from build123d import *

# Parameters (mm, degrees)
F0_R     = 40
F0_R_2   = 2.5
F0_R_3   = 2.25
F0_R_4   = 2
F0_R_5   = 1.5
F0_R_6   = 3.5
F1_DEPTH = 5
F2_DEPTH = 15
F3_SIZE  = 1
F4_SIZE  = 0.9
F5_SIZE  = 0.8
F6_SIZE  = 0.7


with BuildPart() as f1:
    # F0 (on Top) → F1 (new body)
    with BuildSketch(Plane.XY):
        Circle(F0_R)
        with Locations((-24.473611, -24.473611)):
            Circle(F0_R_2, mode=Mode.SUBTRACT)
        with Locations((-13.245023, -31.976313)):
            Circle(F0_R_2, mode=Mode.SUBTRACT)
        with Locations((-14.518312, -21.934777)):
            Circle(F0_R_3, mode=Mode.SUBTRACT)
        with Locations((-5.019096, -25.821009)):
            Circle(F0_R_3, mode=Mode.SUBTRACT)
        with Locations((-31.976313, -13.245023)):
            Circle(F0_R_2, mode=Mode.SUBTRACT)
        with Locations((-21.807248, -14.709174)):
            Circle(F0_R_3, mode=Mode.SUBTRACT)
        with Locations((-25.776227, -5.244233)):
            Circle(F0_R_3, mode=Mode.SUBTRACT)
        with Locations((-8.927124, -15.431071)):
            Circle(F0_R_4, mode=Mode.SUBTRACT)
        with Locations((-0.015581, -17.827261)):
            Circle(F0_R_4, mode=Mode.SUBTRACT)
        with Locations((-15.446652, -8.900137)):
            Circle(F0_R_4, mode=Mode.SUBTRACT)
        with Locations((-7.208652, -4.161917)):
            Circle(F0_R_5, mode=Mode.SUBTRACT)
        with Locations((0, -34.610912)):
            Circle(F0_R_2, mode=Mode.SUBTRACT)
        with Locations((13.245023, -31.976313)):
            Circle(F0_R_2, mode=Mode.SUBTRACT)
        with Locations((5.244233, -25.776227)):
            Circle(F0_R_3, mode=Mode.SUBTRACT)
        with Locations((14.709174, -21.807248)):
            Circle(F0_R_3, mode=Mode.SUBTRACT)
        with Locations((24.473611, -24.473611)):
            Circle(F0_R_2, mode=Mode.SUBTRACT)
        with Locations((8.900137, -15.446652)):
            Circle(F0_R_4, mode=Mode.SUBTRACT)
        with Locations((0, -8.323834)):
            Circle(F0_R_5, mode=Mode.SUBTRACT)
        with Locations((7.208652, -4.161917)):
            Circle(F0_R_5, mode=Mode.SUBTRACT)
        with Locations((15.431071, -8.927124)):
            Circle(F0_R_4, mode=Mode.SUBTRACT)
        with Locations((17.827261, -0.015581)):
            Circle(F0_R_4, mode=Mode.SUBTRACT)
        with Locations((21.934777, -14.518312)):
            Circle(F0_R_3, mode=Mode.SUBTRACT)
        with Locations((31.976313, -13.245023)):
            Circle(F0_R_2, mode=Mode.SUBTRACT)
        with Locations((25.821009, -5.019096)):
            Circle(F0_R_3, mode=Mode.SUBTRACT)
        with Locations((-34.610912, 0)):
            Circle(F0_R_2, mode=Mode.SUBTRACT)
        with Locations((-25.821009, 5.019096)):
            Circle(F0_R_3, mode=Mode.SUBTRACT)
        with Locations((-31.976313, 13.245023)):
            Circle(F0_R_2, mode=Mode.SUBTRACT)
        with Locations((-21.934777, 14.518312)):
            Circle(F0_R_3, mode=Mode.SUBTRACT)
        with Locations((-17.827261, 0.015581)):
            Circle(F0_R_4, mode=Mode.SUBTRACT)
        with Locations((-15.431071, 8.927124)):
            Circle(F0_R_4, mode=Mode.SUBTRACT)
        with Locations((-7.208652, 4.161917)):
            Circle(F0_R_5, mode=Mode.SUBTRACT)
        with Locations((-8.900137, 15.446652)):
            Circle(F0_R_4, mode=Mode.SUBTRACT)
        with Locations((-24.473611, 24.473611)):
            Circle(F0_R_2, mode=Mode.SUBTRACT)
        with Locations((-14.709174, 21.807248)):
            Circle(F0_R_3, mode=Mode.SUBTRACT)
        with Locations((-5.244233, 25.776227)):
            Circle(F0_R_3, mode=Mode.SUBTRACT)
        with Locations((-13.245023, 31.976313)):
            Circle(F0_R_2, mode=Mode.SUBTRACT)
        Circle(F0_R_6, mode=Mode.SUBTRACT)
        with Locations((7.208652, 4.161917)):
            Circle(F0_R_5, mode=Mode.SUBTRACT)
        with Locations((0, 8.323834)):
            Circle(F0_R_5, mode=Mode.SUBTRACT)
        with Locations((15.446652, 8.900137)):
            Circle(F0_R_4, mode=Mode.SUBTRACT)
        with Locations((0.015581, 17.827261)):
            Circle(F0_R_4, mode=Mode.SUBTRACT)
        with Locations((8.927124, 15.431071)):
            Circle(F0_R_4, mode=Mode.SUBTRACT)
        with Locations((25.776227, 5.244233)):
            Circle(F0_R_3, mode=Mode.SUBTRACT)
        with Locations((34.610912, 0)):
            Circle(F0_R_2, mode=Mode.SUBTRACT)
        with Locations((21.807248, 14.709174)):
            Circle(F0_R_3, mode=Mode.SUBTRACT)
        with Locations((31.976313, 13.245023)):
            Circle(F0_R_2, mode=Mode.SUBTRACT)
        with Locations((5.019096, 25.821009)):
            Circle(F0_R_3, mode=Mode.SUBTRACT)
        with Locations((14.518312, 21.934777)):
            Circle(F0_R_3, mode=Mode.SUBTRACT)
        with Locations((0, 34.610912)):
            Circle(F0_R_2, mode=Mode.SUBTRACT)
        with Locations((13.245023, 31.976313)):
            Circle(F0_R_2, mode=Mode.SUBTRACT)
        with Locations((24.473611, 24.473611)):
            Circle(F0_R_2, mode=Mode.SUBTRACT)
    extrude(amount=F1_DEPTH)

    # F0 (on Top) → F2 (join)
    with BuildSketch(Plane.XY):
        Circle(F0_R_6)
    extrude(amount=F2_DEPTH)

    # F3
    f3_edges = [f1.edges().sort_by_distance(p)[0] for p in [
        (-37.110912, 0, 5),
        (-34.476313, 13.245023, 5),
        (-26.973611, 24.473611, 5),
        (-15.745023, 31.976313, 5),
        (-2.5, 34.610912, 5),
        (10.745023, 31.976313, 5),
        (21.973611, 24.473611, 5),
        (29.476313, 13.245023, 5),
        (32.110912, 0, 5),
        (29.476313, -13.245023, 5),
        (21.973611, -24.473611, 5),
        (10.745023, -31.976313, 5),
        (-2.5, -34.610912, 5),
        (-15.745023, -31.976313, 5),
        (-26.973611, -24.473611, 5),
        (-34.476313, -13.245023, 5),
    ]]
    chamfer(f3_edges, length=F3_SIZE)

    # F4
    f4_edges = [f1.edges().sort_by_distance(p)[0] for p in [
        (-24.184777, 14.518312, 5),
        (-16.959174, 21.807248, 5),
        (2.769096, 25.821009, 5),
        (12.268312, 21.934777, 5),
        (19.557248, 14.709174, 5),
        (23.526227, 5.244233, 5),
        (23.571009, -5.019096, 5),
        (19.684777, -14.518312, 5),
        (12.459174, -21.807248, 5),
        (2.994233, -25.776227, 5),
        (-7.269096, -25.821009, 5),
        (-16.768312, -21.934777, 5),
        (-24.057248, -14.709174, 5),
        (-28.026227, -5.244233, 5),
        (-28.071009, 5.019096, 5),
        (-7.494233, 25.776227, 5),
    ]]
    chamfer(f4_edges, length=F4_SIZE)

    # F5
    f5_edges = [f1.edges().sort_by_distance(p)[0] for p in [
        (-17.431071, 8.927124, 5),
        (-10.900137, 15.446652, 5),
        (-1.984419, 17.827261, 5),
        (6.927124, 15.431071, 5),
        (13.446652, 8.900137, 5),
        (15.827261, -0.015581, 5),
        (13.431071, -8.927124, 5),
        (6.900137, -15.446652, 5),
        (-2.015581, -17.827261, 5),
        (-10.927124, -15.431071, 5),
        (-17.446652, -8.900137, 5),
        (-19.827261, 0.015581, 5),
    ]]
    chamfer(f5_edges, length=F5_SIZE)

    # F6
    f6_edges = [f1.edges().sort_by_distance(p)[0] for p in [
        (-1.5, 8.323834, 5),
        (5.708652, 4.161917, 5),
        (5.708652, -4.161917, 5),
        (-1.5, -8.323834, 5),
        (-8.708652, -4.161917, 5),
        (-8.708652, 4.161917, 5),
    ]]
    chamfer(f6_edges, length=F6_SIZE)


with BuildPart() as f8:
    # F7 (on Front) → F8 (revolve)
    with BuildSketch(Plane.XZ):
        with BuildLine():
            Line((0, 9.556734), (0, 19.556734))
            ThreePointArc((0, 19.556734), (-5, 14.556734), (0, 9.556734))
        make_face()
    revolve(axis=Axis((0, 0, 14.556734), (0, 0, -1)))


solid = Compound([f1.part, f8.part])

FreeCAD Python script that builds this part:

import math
import FreeCAD as App
import Part
import Sketcher
Q = App.Units.Quantity


def edges_at(feature, points):
    """Names of the edges that pass closest to the given points."""
    edges = feature.Shape.Edges
    near = lambda p: min(range(len(edges)), key=lambda i: edges[i].distToShape(Part.Vertex(*p))[0])
    return sorted({f"Edge{near(p) + 1}" for p in points})

doc = App.newDocument("Part")
params = doc.addObject("Spreadsheet::Sheet", "Params")
for row, (alias, value) in enumerate([
    ("sketch1_diameter", "80 mm"),
    ("sketch1_diameter2", "5 mm"),
    ("sketch1_diameter3", "4 mm"),
    ("sketch1_diameter4", "3 mm"),
    ("sketch1_diameter5", "7 mm"),
    ("pad1_length", "5 mm"),
    ("sketch2_diameter", "7 mm"),
    ("pad2_length", "15 mm"),
    ("chamfer_size", "1 mm"),
    ("chamfer2_size", "0.9 mm"),
    ("chamfer3_size", "0.8 mm"),
    ("chamfer4_size", "0.7 mm"),
    ("sketch3_radius", "5 mm"),
    ("revolution_angle", "360 deg"),
], start=1):
    params.set(f"A{row}", alias)
    params.set(f"B{row}", "=" + value)
    params.setAlias(f"B{row}", alias)

body = doc.addObject("PartDesign::Body", "Body")

# Sketch on XY plane
sketch1 = body.newObject("Sketcher::SketchObject", "Sketch")
sketch1.AttachmentSupport = (doc.getObject("XY_Plane"), [""])
sketch1.MapMode = "FlatFace"
sketch1.addGeometry([
    Part.Circle(App.Vector(0, 0, 0), App.Vector(0, 0, 1), 40),  # 0
    Part.Circle(App.Vector(-24.5, -24.5, 0), App.Vector(0, 0, 1), 2.5),  # 1
    Part.Circle(App.Vector(-13.2, -32, 0), App.Vector(0, 0, 1), 2.5),  # 2
    Part.Circle(App.Vector(-14.5, -21.9, 0), App.Vector(0, 0, 1), 2.2),  # 3
    Part.Circle(App.Vector(-5, -25.8, 0), App.Vector(0, 0, 1), 2.2),  # 4
    Part.Circle(App.Vector(-32, -13.2, 0), App.Vector(0, 0, 1), 2.5),  # 5
    Part.Circle(App.Vector(-21.8, -14.7, 0), App.Vector(0, 0, 1), 2.2),  # 6
    Part.Circle(App.Vector(-25.8, -5.2, 0), App.Vector(0, 0, 1), 2.2),  # 7
    Part.Circle(App.Vector(-8.9, -15.4, 0), App.Vector(0, 0, 1), 2),  # 8
    Part.Circle(App.Vector(0, -17.8, 0), App.Vector(0, 0, 1), 2),  # 9
    Part.Circle(App.Vector(-15.4, -8.9, 0), App.Vector(0, 0, 1), 2),  # 10
    Part.Circle(App.Vector(-7.2, -4.2, 0), App.Vector(0, 0, 1), 1.5),  # 11
    Part.Circle(App.Vector(0, -34.6, 0), App.Vector(0, 0, 1), 2.5),  # 12
    Part.Circle(App.Vector(13.2, -32, 0), App.Vector(0, 0, 1), 2.5),  # 13
    Part.Circle(App.Vector(5.2, -25.8, 0), App.Vector(0, 0, 1), 2.2),  # 14
    Part.Circle(App.Vector(14.7, -21.8, 0), App.Vector(0, 0, 1), 2.2),  # 15
    Part.Circle(App.Vector(24.5, -24.5, 0), App.Vector(0, 0, 1), 2.5),  # 16
    Part.Circle(App.Vector(8.9, -15.4, 0), App.Vector(0, 0, 1), 2),  # 17
    Part.Circle(App.Vector(0, -8.3, 0), App.Vector(0, 0, 1), 1.5),  # 18
    Part.Circle(App.Vector(7.2, -4.2, 0), App.Vector(0, 0, 1), 1.5),  # 19
    Part.Circle(App.Vector(15.4, -8.9, 0), App.Vector(0, 0, 1), 2),  # 20
    Part.Circle(App.Vector(17.8, 0, 0), App.Vector(0, 0, 1), 2),  # 21
    Part.Circle(App.Vector(21.9, -14.5, 0), App.Vector(0, 0, 1), 2.2),  # 22
    Part.Circle(App.Vector(32, -13.2, 0), App.Vector(0, 0, 1), 2.5),  # 23
    Part.Circle(App.Vector(25.8, -5, 0), App.Vector(0, 0, 1), 2.2),  # 24
    Part.Circle(App.Vector(-34.6, 0, 0), App.Vector(0, 0, 1), 2.5),  # 25
    Part.Circle(App.Vector(-25.8, 5, 0), App.Vector(0, 0, 1), 2.2),  # 26
    Part.Circle(App.Vector(-32, 13.2, 0), App.Vector(0, 0, 1), 2.5),  # 27
    Part.Circle(App.Vector(-21.9, 14.5, 0), App.Vector(0, 0, 1), 2.2),  # 28
    Part.Circle(App.Vector(-17.8, 0, 0), App.Vector(0, 0, 1), 2),  # 29
    Part.Circle(App.Vector(-15.4, 8.9, 0), App.Vector(0, 0, 1), 2),  # 30
    Part.Circle(App.Vector(-7.2, 4.2, 0), App.Vector(0, 0, 1), 1.5),  # 31
    Part.Circle(App.Vector(-8.9, 15.4, 0), App.Vector(0, 0, 1), 2),  # 32
    Part.Circle(App.Vector(-24.5, 24.5, 0), App.Vector(0, 0, 1), 2.5),  # 33
    Part.Circle(App.Vector(-14.7, 21.8, 0), App.Vector(0, 0, 1), 2.2),  # 34
    Part.Circle(App.Vector(-5.2, 25.8, 0), App.Vector(0, 0, 1), 2.2),  # 35
    Part.Circle(App.Vector(-13.2, 32, 0), App.Vector(0, 0, 1), 2.5),  # 36
    Part.Circle(App.Vector(0, 0, 0), App.Vector(0, 0, 1), 3.5),  # 37
    Part.Circle(App.Vector(7.2, 4.2, 0), App.Vector(0, 0, 1), 1.5),  # 38
    Part.Circle(App.Vector(0, 8.3, 0), App.Vector(0, 0, 1), 1.5),  # 39
    Part.Circle(App.Vector(15.4, 8.9, 0), App.Vector(0, 0, 1), 2),  # 40
    Part.Circle(App.Vector(0, 17.8, 0), App.Vector(0, 0, 1), 2),  # 41
    Part.Circle(App.Vector(8.9, 15.4, 0), App.Vector(0, 0, 1), 2),  # 42
    Part.Circle(App.Vector(25.8, 5.2, 0), App.Vector(0, 0, 1), 2.2),  # 43
    Part.Circle(App.Vector(34.6, 0, 0), App.Vector(0, 0, 1), 2.5),  # 44
    Part.Circle(App.Vector(21.8, 14.7, 0), App.Vector(0, 0, 1), 2.2),  # 45
    Part.Circle(App.Vector(32, 13.2, 0), App.Vector(0, 0, 1), 2.5),  # 46
    Part.Circle(App.Vector(5, 25.8, 0), App.Vector(0, 0, 1), 2.2),  # 47
    Part.Circle(App.Vector(14.5, 21.9, 0), App.Vector(0, 0, 1), 2.2),  # 48
    Part.Circle(App.Vector(0, 34.6, 0), App.Vector(0, 0, 1), 2.5),  # 49
    Part.Circle(App.Vector(13.2, 32, 0), App.Vector(0, 0, 1), 2.5),  # 50
    Part.Circle(App.Vector(24.5, 24.5, 0), App.Vector(0, 0, 1), 2.5),  # 51
], False)
sketch1.addConstraint([
    Sketcher.Constraint("Coincident", 0, 3, -1, 1),
    Sketcher.Constraint("Coincident", 37, 3, -1, 1),
    Sketcher.Constraint("Equal", 1, 2),
    Sketcher.Constraint("Equal", 3, 4),
    Sketcher.Constraint("Equal", 2, 5),
    Sketcher.Constraint("Equal", 4, 6),
    Sketcher.Constraint("Equal", 6, 7),
    Sketcher.Constraint("Equal", 8, 9),
    Sketcher.Constraint("Equal", 9, 10),
    Sketcher.Constraint("Equal", 5, 12),
    Sketcher.Constraint("Equal", 12, 13),
    Sketcher.Constraint("Equal", 7, 14),
    Sketcher.Constraint("Equal", 14, 15),
    Sketcher.Constraint("Equal", 13, 16),
    Sketcher.Constraint("Equal", 10, 17),
    Sketcher.Constraint("Equal", 11, 18),
    Sketcher.Constraint("Equal", 18, 19),
    Sketcher.Constraint("Equal", 17, 20),
    Sketcher.Constraint("Equal", 20, 21),
    Sketcher.Constraint("Equal", 15, 22),
    Sketcher.Constraint("Equal", 16, 23),
    Sketcher.Constraint("Equal", 22, 24),
    Sketcher.Constraint("Equal", 23, 25),
    Sketcher.Constraint("Equal", 24, 26),
    Sketcher.Constraint("Equal", 25, 27),
    Sketcher.Constraint("Equal", 26, 28),
    Sketcher.Constraint("Equal", 21, 29),
    Sketcher.Constraint("Equal", 29, 30),
    Sketcher.Constraint("Equal", 19, 31),
    Sketcher.Constraint("Equal", 30, 32),
    Sketcher.Constraint("Equal", 27, 33),
    Sketcher.Constraint("Equal", 28, 34),
    Sketcher.Constraint("Equal", 34, 35),
    Sketcher.Constraint("Equal", 33, 36),
    Sketcher.Constraint("Equal", 31, 38),
    Sketcher.Constraint("Equal", 38, 39),
    Sketcher.Constraint("Equal", 32, 40),
    Sketcher.Constraint("Equal", 40, 41),
    Sketcher.Constraint("Equal", 41, 42),
    Sketcher.Constraint("Equal", 35, 43),
    Sketcher.Constraint("Equal", 36, 44),
    Sketcher.Constraint("Equal", 43, 45),
    Sketcher.Constraint("Equal", 44, 46),
    Sketcher.Constraint("Equal", 45, 47),
    Sketcher.Constraint("Equal", 47, 48),
    Sketcher.Constraint("Equal", 46, 49),
    Sketcher.Constraint("Equal", 49, 50),
    Sketcher.Constraint("Equal", 50, 51),
    Sketcher.Constraint("Symmetric", 24, 3, 26, 3, -1, 1),
    Sketcher.Constraint("Symmetric", 23, 3, 27, 3, -1, 1),
    Sketcher.Constraint("Symmetric", 22, 3, 28, 3, -1, 1),
    Sketcher.Constraint("Symmetric", 21, 3, 29, 3, -1, 1),
    Sketcher.Constraint("Symmetric", 20, 3, 30, 3, -1, 1),
    Sketcher.Constraint("Symmetric", 19, 3, 31, 3, -1, 1),
    Sketcher.Constraint("Symmetric", 17, 3, 32, 3, -1, 1),
    Sketcher.Constraint("Symmetric", 16, 3, 33, 3, -1, 1),
    Sketcher.Constraint("Symmetric", 15, 3, 34, 3, -1, 1),
    Sketcher.Constraint("Symmetric", 14, 3, 35, 3, -1, 1),
    Sketcher.Constraint("Symmetric", 13, 3, 36, 3, -1, 1),
    Sketcher.Constraint("Symmetric", 11, 3, 38, 3, -1, 1),
    Sketcher.Constraint("Symmetric", 18, 3, 39, 3, -1, 1),
    Sketcher.Constraint("Symmetric", 10, 3, 40, 3, -1, 1),
    Sketcher.Constraint("Symmetric", 9, 3, 41, 3, -1, 1),
    Sketcher.Constraint("Symmetric", 8, 3, 42, 3, -1, 1),
    Sketcher.Constraint("Symmetric", 7, 3, 43, 3, -1, 1),
    Sketcher.Constraint("Symmetric", 25, 3, 44, 3, -1, 1),
    Sketcher.Constraint("Symmetric", 6, 3, 45, 3, -1, 1),
    Sketcher.Constraint("Symmetric", 5, 3, 46, 3, -1, 1),
    Sketcher.Constraint("Symmetric", 4, 3, 47, 3, -1, 1),
    Sketcher.Constraint("Symmetric", 3, 3, 48, 3, -1, 1),
    Sketcher.Constraint("Symmetric", 12, 3, 49, 3, -1, 1),
    Sketcher.Constraint("Symmetric", 2, 3, 50, 3, -1, 1),
    Sketcher.Constraint("Symmetric", 1, 3, 51, 3, -1, 1),
    Sketcher.Constraint("Symmetric", 2, 3, 13, 3, -2),
    Sketcher.Constraint("Symmetric", 1, 3, 16, 3, -2),
    Sketcher.Constraint("Symmetric", 11, 3, 19, 3, -2),
    Sketcher.Constraint("Symmetric", 5, 3, 23, 3, -2),
    Sketcher.Constraint("PointOnObject", 12, 3, -2),
    Sketcher.Constraint("PointOnObject", 18, 3, -2),
    Sketcher.Constraint("PointOnObject", 25, 3, -1),
    Sketcher.Constraint("Diameter", 0, Q("80 mm")),
    Sketcher.Constraint("Diameter", 1, Q("5 mm")),
    Sketcher.Constraint("Diameter", 8, Q("4 mm")),
    Sketcher.Constraint("Diameter", 11, Q("3 mm")),
    Sketcher.Constraint("Diameter", 37, Q("7 mm")),
    Sketcher.Constraint("Diameter", 3, Q("4.5 mm")),
    Sketcher.Constraint("DistanceX", 5, 3, 3, 3, Q("17.458001 mm")),
    Sketcher.Constraint("DistanceX", 10, 3, 11, 3, Q("8.238 mm")),
    Sketcher.Constraint("DistanceY", 28, 3, 36, 3, Q("17.458001 mm")),
    Sketcher.Constraint("DistanceX", 1, 3, 3, 3, Q("9.955299 mm")),
    Sketcher.Constraint("DistanceY", 4, 3, 1, 3, Q("1.347398 mm")),
    Sketcher.Constraint("DistanceX", 2, 3, 8, 3, Q("4.317899 mm")),
    Sketcher.Constraint("DistanceY", 12, 3, 2, 3, Q("2.634599 mm")),
    Sketcher.Constraint("DistanceY", 12, 3, 16, 3, Q("10.137301 mm")),
    Sketcher.Constraint("DistanceY", 23, 3, 20, 3, Q("4.317899 mm")),
    Sketcher.Constraint("DistanceX", 25, 3, 5, 3, Q("2.634599 mm")),
    Sketcher.Constraint("DistanceX", 26, 3, 33, 3, Q("1.347398 mm")),
    Sketcher.Constraint("DistanceX", 1, 3, -1, 1, Q("24.473611 mm")),
    Sketcher.Constraint("DistanceY", 1, 3, -1, 1, Q("24.473611 mm")),
    Sketcher.Constraint("DistanceX", 6, 3, -1, 1, Q("21.807248 mm")),
    Sketcher.Constraint("DistanceY", 8, 3, -1, 1, Q("15.431071 mm")),
    Sketcher.Constraint("DistanceX", 9, 3, -1, 1, Q("0.015581 mm")),
    Sketcher.Constraint("DistanceY", 9, 3, -1, 1, Q("17.827261 mm")),
    Sketcher.Constraint("DistanceY", 15, 3, -1, 1, Q("21.807248 mm")),
    Sketcher.Constraint("DistanceX", -1, 1, 20, 3, Q("15.431071 mm")),
    Sketcher.Constraint("DistanceX", -1, 1, 21, 3, Q("17.827261 mm")),
    Sketcher.Constraint("DistanceY", 21, 3, -1, 1, Q("0.015581 mm")),
    Sketcher.Constraint("DistanceX", 3, 3, 2, 3, Q("1.273289 mm")),
    Sketcher.Constraint("DistanceY", 4, 3, 3, 3, Q("3.886232 mm")),
    Sketcher.Constraint("DistanceY", 2, 3, 5, 3, Q("18.73129 mm")),
    Sketcher.Constraint("DistanceY", 6, 3, 5, 3, Q("1.464151 mm")),
    Sketcher.Constraint("DistanceX", 6, 3, 4, 3, Q("16.788152 mm")),
    Sketcher.Constraint("DistanceY", 5, 3, 7, 3, Q("8.00079 mm")),
    Sketcher.Constraint("DistanceX", 7, 3, 6, 3, Q("3.968979 mm")),
    Sketcher.Constraint("DistanceX", 10, 3, 8, 3, Q("6.519528 mm")),
    Sketcher.Constraint("DistanceY", 3, 3, 10, 3, Q("13.03464 mm")),
    Sketcher.Constraint("DistanceY", 10, 3, 11, 3, Q("4.73822 mm")),
    Sketcher.Constraint("DistanceX", 14, 3, 13, 3, Q("8.00079 mm")),
    Sketcher.Constraint("DistanceX", 14, 3, 15, 3, Q("9.464941 mm")),
    Sketcher.Constraint("DistanceY", 14, 3, 15, 3, Q("3.968979 mm")),
    Sketcher.Constraint("DistanceY", 9, 3, 17, 3, Q("2.380609 mm")),
    Sketcher.Constraint("DistanceY", 17, 3, 18, 3, Q("7.122818 mm")),
    Sketcher.Constraint("DistanceX", 17, 3, 22, 3, Q("13.03464 mm")),
    Sketcher.Constraint("DistanceX", 22, 3, 24, 3, Q("3.886232 mm")),
    Sketcher.Constraint("DistanceY", 24, 3, 19, 3, Q("0.857179 mm")),
])
sketch1.setExpression("Constraints[80]", "Params.sketch1_diameter")
sketch1.setExpression("Constraints[81]", "Params.sketch1_diameter2")
sketch1.setExpression("Constraints[82]", "Params.sketch1_diameter3")
sketch1.setExpression("Constraints[83]", "Params.sketch1_diameter4")
sketch1.setExpression("Constraints[84]", "Params.sketch1_diameter5")
pad1 = body.newObject("PartDesign::Pad", "Pad")
pad1.Profile = sketch1
pad1.setExpression("Length", "Params.pad1_length")

# Sketch on XY plane
sketch2 = body.newObject("Sketcher::SketchObject", "Sketch001")
sketch2.AttachmentSupport = (doc.getObject("XY_Plane"), [""])
sketch2.MapMode = "FlatFace"
sketch2.addGeometry(Part.Circle(App.Vector(0, 0, 0), App.Vector(0, 0, 1), 3.5), False)
sketch2.addConstraint([
    Sketcher.Constraint("Coincident", 0, 3, -1, 1),
    Sketcher.Constraint("Diameter", 0, Q("7 mm")),
])
sketch2.setExpression("Constraints[1]", "Params.sketch2_diameter")
pad2 = body.newObject("PartDesign::Pad", "Pad001")
pad2.Profile = sketch2
pad2.setExpression("Length", "Params.pad2_length")
doc.recompute()

chamfer = body.newObject("PartDesign::Chamfer", "Chamfer")
chamfer.Base = (pad2, edges_at(pad2, [
    (-37.111, 0, 5),
    (-34.476, 13.245, 5),
    (-26.974, 24.474, 5),
    (-15.745, 31.976, 5),
    (-2.5, 34.611, 5),
    (10.745, 31.976, 5),
    (21.974, 24.474, 5),
    (29.476, 13.245, 5),
    (32.111, 0, 5),
    (29.476, -13.245, 5),
    (21.974, -24.474, 5),
    (10.745, -31.976, 5),
    (-2.5, -34.611, 5),
    (-15.745, -31.976, 5),
    (-26.974, -24.474, 5),
    (-34.476, -13.245, 5),
]))
chamfer.setExpression("Size", "Params.chamfer_size")
doc.recompute()

chamfer2 = body.newObject("PartDesign::Chamfer", "Chamfer001")
chamfer2.Base = (chamfer, edges_at(chamfer, [
    (-24.185, 14.518, 5),
    (-16.959, 21.807, 5),
    (2.769, 25.821, 5),
    (12.268, 21.935, 5),
    (19.557, 14.709, 5),
    (23.526, 5.244, 5),
    (23.571, -5.019, 5),
    (19.685, -14.518, 5),
    (12.459, -21.807, 5),
    (2.994, -25.776, 5),
    (-7.269, -25.821, 5),
    (-16.768, -21.935, 5),
    (-24.057, -14.709, 5),
    (-28.026, -5.244, 5),
    (-28.071, 5.019, 5),
    (-7.494, 25.776, 5),
]))
chamfer2.setExpression("Size", "Params.chamfer2_size")
doc.recompute()

chamfer3 = body.newObject("PartDesign::Chamfer", "Chamfer002")
chamfer3.Base = (chamfer2, edges_at(chamfer2, [
    (-17.431, 8.927, 5),
    (-10.9, 15.447, 5),
    (-1.984, 17.827, 5),
    (6.927, 15.431, 5),
    (13.447, 8.9, 5),
    (15.827, -0.016, 5),
    (13.431, -8.927, 5),
    (6.9, -15.447, 5),
    (-2.016, -17.827, 5),
    (-10.927, -15.431, 5),
    (-17.447, -8.9, 5),
    (-19.827, 0.016, 5),
]))
chamfer3.setExpression("Size", "Params.chamfer3_size")
doc.recompute()

chamfer4 = body.newObject("PartDesign::Chamfer", "Chamfer003")
chamfer4.Base = (chamfer3, edges_at(chamfer3, [
    (-1.5, 8.324, 5),
    (5.709, 4.162, 5),
    (5.709, -4.162, 5),
    (-1.5, -8.324, 5),
    (-8.709, -4.162, 5),
    (-8.709, 4.162, 5),
]))
chamfer4.setExpression("Size", "Params.chamfer4_size")
body2 = doc.addObject("PartDesign::Body", "Body001")

# Sketch on XZ plane
sketch3 = body2.newObject("Sketcher::SketchObject", "Sketch002")
sketch3.AttachmentSupport = (doc.getObject("XZ_Plane001"), [""])
sketch3.MapMode = "FlatFace"
sketch3.addGeometry([
    Part.LineSegment(App.Vector(0, 10, 0), App.Vector(0, 20, 0)),
    Part.ArcOfCircle(Part.Circle(App.Vector(0, 15, 0), App.Vector(0, 0, 1), 5), math.radians(90), math.radians(270)),
], False)
sketch3.addConstraint([
    Sketcher.Constraint("Coincident", 0, 1, 1, 2),
    Sketcher.Constraint("Coincident", 1, 1, 0, 2),
    Sketcher.Constraint("Vertical", 0),
    Sketcher.Constraint("PointOnObject", 1, 3, -2),
    Sketcher.Constraint("PointOnObject", 0, 1, -2),
    Sketcher.Constraint("Radius", 1, Q("5 mm")),
    Sketcher.Constraint("DistanceY", -1, 1, 1, 3, Q("14.556734 mm")),
])
sketch3.setExpression("Constraints[5]", "Params.sketch3_radius")
revolution = body2.newObject("PartDesign::Revolution", "Revolution")
revolution.Profile = sketch3
revolution.ReferenceAxis = (sketch3, ["V_Axis"])
revolution.setExpression("Angle", "Params.revolution_angle")

doc.recompute()
